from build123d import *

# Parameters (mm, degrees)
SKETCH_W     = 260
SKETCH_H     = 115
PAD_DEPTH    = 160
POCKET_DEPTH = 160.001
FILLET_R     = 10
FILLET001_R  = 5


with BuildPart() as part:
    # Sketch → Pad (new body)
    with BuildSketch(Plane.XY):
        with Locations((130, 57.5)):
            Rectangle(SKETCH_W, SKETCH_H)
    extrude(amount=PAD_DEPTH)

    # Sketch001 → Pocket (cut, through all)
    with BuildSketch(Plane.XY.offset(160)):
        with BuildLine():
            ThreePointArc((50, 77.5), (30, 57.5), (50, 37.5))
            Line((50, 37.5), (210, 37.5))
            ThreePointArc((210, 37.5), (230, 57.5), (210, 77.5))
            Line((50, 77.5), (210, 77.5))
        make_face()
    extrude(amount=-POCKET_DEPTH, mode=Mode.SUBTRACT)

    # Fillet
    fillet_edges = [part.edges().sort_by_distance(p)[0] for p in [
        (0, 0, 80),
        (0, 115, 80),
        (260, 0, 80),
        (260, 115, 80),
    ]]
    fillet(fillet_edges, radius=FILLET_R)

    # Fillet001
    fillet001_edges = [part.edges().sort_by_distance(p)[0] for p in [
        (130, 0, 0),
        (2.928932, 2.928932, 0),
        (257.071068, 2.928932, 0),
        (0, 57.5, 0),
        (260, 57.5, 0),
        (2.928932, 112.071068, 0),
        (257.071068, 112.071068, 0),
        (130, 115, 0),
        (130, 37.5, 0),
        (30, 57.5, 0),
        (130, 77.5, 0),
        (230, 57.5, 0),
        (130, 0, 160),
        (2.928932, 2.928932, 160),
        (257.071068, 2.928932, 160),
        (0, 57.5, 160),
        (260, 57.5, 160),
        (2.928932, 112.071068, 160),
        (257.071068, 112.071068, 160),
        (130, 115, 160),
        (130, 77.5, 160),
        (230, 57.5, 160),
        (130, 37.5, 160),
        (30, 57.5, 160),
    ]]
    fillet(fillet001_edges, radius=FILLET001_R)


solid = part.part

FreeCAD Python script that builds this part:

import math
import FreeCAD as App
import Part
import Sketcher
Q = App.Units.Quantity


def edges_at(feature, points):
    """Names of the edges that pass closest to the given points."""
    edges = feature.Shape.Edges
    near = lambda p: min(range(len(edges)), key=lambda i: edges[i].distToShape(Part.Vertex(*p))[0])
    return sorted({f"Edge{near(p) + 1}" for p in points})


def add_polygon(sketch, points):
    """Adds a closed chain of lines whose ends are joined by coincident constraints."""
    first, n = sketch.GeometryCount, len(points)
    for a, b in zip(points, points[1:] + points[:1]):
        sketch.addGeometry(Part.LineSegment(App.Vector(*a, 0), App.Vector(*b, 0)), False)
    for i in range(n):
        sketch.addConstraint(Sketcher.Constraint("Coincident", first + i, 2, first + (i + 1) % n, 1))

doc = App.newDocument("Part")
body = doc.addObject("PartDesign::Body", "Body")

sketch1 = body.newObject("Sketcher::SketchObject", "Sketch")
sketch1.AttachmentSupport = (doc.getObject("XY_Plane"), [""])
sketch1.MapMode = "FlatFace"
add_polygon(sketch1, [(0, 115), (0, 0), (260, 0), (260, 115)])
sketch1.addConstraint(Sketcher.Constraint("Vertical", 0))
sketch1.addConstraint(Sketcher.Constraint("Horizontal", 1))
sketch1.addConstraint(Sketcher.Constraint("Vertical", 2))
sketch1.addConstraint(Sketcher.Constraint("Horizontal", 3))
sketch1.addConstraint(Sketcher.Constraint("Coincident", 0, 2, -1, 1))
sketch1.addConstraint(Sketcher.Constraint("DistanceX", 1, 1, 1, 2, Q("260 mm")))
sketch1.addConstraint(Sketcher.Constraint("DistanceY", 0, 2, 0, 1, Q("115 mm")))
pad1 = body.newObject("PartDesign::Pad", "Pad")
pad1.Profile = sketch1
pad1.Length = 160

sketch2 = body.newObject("Sketcher::SketchObject", "Sketch001")
sketch2.AttachmentSupport = (doc.getObject("XY_Plane"), [""])
sketch2.MapMode = "FlatFace"
sketch2.AttachmentOffset = App.Placement(App.Vector(0, 0, 160), App.Rotation())
sketch2.addGeometry(Part.ArcOfCircle(Part.Circle(App.Vector(50, 57.5, 0), App.Vector(0, 0, 1), 20), math.radians(90), math.radians(270)), False)
sketch2.addGeometry(Part.LineSegment(App.Vector(50, 37.5, 0), App.Vector(210, 37.5, 0)), False)
sketch2.addGeometry(Part.ArcOfCircle(Part.Circle(App.Vector(210, 57.5, 0), App.Vector(0, 0, 1), 20), math.radians(-90), math.radians(90)), False)
sketch2.addGeometry(Part.LineSegment(App.Vector(210, 77.5, 0), App.Vector(50, 77.5, 0)), False)
sketch2.addConstraint(Sketcher.Constraint("Tangent", 0, 2, 1, 1))
sketch2.addConstraint(Sketcher.Constraint("Tangent", 1, 2, 2, 1))
sketch2.addConstraint(Sketcher.Constraint("Tangent", 2, 2, 3, 1))
sketch2.addConstraint(Sketcher.Constraint("Tangent", 3, 2, 0, 1))
sketch2.addConstraint(Sketcher.Constraint("Horizontal", 1))
sketch2.addConstraint(Sketcher.Constraint("Horizontal", 3))
sketch2.addConstraint(Sketcher.Constraint("Radius", 0, Q("20 mm")))
sketch2.addConstraint(Sketcher.Constraint("DistanceX", 1, 1, 1, 2, Q("160 mm")))
sketch2.addConstraint(Sketcher.Constraint("DistanceX", -1, 1, 0, 3, Q("50 mm")))
sketch2.addConstraint(Sketcher.Constraint("DistanceY", -1, 1, 0, 3, Q("57.5 mm")))
pocket1 = body.newObject("PartDesign::Pocket", "Pocket")
pocket1.Profile = sketch2
pocket1.Type = "ThroughAll"
doc.recompute()

fillet = body.newObject("PartDesign::Fillet", "Fillet")
fillet.Base = (pocket1, edges_at(pocket1, [
    (0, 0, 80),
    (0, 115, 80),
    (260, 0, 80),
    (260, 115, 80),
]))
fillet.Radius = 10
doc.recompute()

fillet2 = body.newObject("PartDesign::Fillet", "Fillet001")
fillet2.Base = (fillet, edges_at(fillet, [
    (130, 0, 0),
    (2.929, 2.929, 0),
    (257.071, 2.929, 0),
    (0, 57.5, 0),
    (260, 57.5, 0),
    (2.929, 112.071, 0),
    (257.071, 112.071, 0),
    (130, 115, 0),
    (130, 37.5, 0),
    (30, 57.5, 0),
    (130, 77.5, 0),
    (230, 57.5, 0),
    (130, 0, 160),
    (2.929, 2.929, 160),
    (257.071, 2.929, 160),
    (0, 57.5, 160),
    (260, 57.5, 160),
    (2.929, 112.071, 160),
    (257.071, 112.071, 160),
    (130, 115, 160),
    (130, 77.5, 160),
    (230, 57.5, 160),
    (130, 37.5, 160),
    (30, 57.5, 160),
]))
fillet2.Radius = 5

doc.recompute()
